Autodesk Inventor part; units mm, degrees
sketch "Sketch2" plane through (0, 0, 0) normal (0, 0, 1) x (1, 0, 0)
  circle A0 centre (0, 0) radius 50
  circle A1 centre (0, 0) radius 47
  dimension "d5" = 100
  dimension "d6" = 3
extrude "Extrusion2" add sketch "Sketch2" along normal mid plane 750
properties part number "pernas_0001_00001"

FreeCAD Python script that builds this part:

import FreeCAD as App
import Part
import Sketcher
Q = App.Units.Quantity

doc = App.newDocument("Part")
params = doc.addObject("Spreadsheet::Sheet", "Params")
for row, (alias, value) in enumerate([
    ("sketch1_diameter", "100 mm"),
    ("sketch1_diameter2", "94 mm"),
    ("pad1_length", "750 mm"),
], start=1):
    params.set(f"A{row}", alias)
    params.set(f"B{row}", "=" + value)
    params.setAlias(f"B{row}", alias)

body = doc.addObject("PartDesign::Body", "Body")

# Sketch on XY plane
sketch1 = body.newObject("Sketcher::SketchObject", "Sketch")
sketch1.AttachmentSupport = (doc.getObject("XY_Plane"), [""])
sketch1.MapMode = "FlatFace"
sketch1.addGeometry([
    Part.Circle(App.Vector(0, 0, 0), App.Vector(0, 0, 1), 50),
    Part.Circle(App.Vector(0, 0, 0), App.Vector(0, 0, 1), 47),
], False)
sketch1.addConstraint([
    Sketcher.Constraint("Coincident", 0, 3, -1, 1),
    Sketcher.Constraint("Coincident", 1, 3, -1, 1),
    Sketcher.Constraint("Diameter", 0, Q("100 mm")),
    Sketcher.Constraint("Diameter", 1, Q("94 mm")),
])
sketch1.setExpression("Constraints[2]", "Params.sketch1_diameter")
sketch1.setExpression("Constraints[3]", "Params.sketch1_diameter2")
pad1 = body.newObject("PartDesign::Pad", "Pad")
pad1.Profile = sketch1
pad1.setExpression("Length", "Params.pad1_length")
pad1.Midplane = True

doc.recompute()
